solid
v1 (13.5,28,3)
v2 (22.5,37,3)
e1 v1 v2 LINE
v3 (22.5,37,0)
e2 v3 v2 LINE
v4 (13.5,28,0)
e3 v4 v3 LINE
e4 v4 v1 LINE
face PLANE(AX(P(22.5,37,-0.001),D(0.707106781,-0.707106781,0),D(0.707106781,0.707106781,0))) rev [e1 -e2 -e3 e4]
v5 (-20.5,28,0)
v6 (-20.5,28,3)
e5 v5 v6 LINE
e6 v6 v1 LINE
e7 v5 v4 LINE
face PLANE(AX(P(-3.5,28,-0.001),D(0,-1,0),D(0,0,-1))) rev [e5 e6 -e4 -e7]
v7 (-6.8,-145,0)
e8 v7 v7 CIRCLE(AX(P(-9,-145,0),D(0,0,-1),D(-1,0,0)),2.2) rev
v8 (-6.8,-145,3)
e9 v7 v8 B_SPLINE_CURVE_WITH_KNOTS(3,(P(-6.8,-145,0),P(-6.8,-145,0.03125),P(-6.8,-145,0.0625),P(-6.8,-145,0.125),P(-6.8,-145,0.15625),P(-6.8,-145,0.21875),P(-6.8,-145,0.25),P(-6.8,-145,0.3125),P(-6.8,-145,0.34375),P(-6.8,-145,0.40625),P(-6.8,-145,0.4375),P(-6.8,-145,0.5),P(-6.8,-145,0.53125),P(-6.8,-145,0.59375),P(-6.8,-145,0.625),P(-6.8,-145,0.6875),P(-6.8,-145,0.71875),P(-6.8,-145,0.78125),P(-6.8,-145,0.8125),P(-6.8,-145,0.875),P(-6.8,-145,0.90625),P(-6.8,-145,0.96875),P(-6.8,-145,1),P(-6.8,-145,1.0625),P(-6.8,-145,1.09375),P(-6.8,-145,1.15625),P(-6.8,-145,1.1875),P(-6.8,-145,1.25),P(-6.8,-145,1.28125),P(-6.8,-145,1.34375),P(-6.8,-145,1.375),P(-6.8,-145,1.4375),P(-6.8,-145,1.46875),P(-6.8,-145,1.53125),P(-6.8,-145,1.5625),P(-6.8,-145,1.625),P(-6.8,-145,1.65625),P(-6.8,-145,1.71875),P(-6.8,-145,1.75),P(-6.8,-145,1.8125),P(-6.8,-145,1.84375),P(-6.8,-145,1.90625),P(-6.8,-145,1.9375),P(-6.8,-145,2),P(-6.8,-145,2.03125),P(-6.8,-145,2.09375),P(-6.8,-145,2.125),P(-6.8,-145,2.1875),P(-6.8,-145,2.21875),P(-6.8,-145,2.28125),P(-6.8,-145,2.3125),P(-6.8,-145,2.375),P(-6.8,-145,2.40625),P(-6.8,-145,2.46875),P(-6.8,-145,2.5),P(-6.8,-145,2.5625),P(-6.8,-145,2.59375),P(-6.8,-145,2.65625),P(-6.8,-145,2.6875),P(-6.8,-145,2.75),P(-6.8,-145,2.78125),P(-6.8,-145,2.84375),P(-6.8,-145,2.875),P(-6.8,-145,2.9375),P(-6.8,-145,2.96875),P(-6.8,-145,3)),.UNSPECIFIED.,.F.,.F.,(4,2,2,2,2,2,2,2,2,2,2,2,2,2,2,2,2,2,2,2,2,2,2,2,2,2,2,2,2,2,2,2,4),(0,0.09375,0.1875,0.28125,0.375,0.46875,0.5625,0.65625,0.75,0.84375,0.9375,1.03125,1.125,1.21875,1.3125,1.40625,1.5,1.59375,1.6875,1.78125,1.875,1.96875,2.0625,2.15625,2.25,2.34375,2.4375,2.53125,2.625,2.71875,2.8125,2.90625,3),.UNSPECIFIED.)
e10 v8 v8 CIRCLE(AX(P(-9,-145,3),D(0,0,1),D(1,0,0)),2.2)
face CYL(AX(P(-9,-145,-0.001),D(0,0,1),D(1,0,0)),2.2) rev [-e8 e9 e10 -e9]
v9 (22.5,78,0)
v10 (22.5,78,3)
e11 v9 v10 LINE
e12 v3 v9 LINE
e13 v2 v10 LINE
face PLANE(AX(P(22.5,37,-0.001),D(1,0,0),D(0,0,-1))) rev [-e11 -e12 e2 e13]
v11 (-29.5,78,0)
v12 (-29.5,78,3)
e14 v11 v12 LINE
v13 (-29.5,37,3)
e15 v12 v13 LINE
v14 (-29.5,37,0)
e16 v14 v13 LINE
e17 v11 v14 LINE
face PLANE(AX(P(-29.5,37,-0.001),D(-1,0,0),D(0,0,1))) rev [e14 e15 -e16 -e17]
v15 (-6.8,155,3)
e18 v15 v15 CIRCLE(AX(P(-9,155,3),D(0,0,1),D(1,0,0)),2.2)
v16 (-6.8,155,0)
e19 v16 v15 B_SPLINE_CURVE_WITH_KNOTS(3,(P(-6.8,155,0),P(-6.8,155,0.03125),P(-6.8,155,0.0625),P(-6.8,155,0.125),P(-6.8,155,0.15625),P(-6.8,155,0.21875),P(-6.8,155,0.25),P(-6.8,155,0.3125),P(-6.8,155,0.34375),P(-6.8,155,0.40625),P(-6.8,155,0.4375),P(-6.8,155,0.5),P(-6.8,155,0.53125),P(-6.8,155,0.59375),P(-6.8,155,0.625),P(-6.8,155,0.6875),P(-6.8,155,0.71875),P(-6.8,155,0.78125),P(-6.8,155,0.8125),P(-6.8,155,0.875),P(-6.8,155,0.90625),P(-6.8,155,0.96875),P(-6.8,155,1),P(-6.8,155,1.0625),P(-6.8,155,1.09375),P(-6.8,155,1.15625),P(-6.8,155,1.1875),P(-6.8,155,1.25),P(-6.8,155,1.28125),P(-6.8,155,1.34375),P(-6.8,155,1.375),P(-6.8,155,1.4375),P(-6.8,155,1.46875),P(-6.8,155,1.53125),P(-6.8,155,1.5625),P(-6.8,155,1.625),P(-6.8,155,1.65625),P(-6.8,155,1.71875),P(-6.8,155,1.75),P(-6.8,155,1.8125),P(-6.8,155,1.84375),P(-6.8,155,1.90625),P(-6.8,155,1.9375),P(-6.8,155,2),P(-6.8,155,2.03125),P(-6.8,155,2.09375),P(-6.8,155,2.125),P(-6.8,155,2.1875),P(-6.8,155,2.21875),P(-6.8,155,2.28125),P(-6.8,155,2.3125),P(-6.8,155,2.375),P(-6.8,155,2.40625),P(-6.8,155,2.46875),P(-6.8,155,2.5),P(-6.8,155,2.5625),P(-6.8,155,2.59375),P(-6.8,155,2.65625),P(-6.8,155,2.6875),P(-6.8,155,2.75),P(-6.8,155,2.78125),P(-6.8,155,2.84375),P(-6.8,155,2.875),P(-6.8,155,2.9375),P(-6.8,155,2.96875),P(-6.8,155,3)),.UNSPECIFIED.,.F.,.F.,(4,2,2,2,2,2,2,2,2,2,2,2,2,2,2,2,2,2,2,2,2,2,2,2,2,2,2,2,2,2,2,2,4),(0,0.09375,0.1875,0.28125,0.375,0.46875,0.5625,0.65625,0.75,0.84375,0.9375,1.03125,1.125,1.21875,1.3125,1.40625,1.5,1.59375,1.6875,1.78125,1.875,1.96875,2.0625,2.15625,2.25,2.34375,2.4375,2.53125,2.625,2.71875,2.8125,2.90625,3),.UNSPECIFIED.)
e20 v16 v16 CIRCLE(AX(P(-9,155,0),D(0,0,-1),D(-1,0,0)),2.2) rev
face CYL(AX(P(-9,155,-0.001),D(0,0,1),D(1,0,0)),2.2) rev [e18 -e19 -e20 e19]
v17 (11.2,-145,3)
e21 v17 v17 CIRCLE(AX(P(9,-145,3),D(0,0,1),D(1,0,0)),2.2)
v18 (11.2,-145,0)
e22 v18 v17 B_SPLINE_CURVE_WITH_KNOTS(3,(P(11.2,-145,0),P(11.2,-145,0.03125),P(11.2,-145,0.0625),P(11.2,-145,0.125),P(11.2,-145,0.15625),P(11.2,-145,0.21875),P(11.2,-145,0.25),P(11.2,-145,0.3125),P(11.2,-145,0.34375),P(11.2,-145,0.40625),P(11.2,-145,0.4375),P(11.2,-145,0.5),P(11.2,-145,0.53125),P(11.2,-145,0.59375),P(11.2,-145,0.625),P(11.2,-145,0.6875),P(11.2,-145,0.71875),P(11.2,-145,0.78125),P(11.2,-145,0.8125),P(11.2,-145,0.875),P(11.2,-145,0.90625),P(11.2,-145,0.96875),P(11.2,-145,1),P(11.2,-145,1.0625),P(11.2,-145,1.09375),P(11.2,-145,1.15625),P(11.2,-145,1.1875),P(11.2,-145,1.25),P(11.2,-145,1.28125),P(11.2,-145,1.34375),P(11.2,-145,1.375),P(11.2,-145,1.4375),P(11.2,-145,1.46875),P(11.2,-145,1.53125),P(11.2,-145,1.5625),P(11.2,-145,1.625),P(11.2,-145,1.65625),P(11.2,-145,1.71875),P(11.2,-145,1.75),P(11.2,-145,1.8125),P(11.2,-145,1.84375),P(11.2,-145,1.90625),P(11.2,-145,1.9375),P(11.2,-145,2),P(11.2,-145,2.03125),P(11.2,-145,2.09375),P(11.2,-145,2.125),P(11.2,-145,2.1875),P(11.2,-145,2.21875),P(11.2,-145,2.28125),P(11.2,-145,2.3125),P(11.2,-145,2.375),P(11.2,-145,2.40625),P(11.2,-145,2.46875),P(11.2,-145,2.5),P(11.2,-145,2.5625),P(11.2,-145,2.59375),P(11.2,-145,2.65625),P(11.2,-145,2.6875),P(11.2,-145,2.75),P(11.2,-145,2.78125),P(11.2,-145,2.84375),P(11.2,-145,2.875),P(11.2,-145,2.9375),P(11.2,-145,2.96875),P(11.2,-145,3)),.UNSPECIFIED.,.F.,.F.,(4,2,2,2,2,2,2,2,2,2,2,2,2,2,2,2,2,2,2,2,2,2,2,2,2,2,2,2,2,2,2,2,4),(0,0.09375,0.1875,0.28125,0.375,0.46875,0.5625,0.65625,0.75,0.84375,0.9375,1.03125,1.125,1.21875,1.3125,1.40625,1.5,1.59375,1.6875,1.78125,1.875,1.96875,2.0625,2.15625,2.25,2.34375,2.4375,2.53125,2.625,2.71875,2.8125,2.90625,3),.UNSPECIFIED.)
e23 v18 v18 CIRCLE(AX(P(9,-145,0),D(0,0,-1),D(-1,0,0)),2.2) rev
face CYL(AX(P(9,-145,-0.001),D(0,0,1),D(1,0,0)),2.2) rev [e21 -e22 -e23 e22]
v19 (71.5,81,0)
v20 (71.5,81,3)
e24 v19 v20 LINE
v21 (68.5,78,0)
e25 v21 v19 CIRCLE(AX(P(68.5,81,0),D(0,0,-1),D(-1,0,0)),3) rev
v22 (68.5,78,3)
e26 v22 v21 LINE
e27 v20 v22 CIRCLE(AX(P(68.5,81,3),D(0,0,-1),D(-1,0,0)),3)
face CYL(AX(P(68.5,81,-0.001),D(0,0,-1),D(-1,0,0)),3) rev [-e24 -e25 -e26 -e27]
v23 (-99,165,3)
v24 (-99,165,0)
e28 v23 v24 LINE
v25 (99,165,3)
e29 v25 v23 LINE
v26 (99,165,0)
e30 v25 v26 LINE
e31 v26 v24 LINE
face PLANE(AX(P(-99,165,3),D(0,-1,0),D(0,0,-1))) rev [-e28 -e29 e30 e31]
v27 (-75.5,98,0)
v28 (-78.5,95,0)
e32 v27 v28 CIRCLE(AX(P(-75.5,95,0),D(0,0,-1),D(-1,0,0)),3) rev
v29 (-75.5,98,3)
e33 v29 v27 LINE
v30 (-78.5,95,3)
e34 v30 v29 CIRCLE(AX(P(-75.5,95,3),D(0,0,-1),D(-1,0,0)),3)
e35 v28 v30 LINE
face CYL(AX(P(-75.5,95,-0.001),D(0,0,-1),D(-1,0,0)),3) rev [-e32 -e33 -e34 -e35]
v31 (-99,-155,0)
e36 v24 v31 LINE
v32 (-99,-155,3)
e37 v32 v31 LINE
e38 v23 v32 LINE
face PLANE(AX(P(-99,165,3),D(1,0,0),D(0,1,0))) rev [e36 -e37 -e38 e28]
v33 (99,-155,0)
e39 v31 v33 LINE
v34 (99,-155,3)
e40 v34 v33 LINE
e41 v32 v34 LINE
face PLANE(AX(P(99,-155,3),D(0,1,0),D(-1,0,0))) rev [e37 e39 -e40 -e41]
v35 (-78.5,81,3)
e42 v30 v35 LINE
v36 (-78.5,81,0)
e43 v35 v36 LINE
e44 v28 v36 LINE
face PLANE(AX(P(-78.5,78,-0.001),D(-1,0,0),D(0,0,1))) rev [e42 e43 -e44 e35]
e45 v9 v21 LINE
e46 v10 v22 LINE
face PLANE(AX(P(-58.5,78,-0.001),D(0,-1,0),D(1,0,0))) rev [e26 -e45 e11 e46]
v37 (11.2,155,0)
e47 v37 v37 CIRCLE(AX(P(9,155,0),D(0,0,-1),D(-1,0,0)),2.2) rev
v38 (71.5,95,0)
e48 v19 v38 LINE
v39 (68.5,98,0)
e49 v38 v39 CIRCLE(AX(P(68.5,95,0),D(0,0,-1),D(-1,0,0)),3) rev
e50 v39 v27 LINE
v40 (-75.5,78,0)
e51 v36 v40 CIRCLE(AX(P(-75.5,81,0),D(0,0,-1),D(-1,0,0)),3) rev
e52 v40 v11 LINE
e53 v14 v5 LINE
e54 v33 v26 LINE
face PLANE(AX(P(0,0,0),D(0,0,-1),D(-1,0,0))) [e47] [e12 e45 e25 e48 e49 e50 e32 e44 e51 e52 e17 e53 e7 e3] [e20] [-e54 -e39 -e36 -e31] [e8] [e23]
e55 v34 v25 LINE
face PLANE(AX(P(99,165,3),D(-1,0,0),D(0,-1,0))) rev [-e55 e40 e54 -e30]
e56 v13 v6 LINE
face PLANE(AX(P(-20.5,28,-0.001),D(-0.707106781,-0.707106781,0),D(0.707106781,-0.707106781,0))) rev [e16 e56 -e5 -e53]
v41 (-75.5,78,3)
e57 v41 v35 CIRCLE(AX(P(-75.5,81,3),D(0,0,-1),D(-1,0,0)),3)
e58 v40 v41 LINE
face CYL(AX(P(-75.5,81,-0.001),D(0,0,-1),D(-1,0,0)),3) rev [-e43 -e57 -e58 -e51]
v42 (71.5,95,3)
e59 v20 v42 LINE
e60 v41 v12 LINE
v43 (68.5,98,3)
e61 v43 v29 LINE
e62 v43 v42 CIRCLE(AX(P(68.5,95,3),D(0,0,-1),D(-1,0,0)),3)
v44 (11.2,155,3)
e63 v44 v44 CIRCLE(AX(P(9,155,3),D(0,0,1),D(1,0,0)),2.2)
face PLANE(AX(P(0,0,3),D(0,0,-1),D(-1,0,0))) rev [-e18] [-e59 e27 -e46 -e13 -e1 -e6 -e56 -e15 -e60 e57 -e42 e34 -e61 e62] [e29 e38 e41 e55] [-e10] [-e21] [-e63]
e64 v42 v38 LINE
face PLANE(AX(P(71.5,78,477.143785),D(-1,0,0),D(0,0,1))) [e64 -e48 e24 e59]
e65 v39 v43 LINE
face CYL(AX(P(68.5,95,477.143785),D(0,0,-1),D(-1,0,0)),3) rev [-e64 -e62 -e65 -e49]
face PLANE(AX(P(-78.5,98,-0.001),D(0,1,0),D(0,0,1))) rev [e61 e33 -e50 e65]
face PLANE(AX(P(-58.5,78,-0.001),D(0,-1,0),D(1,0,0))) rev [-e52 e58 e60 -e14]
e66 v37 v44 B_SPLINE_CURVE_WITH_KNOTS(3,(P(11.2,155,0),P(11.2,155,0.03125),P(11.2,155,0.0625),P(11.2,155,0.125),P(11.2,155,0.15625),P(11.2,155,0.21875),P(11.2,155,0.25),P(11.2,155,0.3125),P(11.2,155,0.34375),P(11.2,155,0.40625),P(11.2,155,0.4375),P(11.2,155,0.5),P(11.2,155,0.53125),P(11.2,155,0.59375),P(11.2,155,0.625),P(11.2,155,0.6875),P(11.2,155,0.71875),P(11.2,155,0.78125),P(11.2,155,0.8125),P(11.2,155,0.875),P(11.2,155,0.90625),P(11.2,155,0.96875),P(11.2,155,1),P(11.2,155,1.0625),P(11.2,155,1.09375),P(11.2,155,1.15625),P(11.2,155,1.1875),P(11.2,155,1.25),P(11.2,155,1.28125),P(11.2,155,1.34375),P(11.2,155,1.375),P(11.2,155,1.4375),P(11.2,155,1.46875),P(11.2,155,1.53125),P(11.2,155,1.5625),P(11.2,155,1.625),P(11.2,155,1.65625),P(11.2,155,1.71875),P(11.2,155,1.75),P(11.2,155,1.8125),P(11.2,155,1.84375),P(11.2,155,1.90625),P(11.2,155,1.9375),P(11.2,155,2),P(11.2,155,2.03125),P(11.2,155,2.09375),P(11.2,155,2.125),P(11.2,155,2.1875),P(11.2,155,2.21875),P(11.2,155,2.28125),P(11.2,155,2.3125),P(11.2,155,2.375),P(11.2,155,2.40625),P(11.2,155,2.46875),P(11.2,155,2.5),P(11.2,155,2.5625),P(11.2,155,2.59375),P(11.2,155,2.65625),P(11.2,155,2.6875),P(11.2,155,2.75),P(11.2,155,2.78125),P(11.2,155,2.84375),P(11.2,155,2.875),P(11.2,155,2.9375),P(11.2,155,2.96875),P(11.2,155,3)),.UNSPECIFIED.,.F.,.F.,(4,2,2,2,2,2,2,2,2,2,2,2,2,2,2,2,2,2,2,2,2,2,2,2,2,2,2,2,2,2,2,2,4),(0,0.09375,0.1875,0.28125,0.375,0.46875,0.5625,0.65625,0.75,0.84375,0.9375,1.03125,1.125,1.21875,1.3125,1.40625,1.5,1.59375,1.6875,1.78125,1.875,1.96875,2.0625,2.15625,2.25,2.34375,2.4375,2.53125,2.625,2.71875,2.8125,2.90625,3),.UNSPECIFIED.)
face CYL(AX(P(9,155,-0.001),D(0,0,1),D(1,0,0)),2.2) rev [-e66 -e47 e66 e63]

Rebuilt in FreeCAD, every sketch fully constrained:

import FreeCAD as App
import Part
import Sketcher

V = App.Vector
Q = App.Units.Quantity


def edges_at(feature, points):
    """Names of the edges that pass closest to the given points."""
    edges = feature.Shape.Edges
    near = lambda p: min(range(len(edges)), key=lambda i: edges[i].distToShape(Part.Vertex(*p))[0])
    return sorted({f"Edge{near(p) + 1}" for p in points})


def add_polygon(sketch, points):
    """Adds a closed chain of lines whose ends are joined by coincident constraints."""
    first, n = sketch.GeometryCount, len(points)
    for a, b in zip(points, points[1:] + points[:1]):
        sketch.addGeometry(Part.LineSegment(App.Vector(*a, 0), App.Vector(*b, 0)), False)
    for i in range(n):
        sketch.addConstraint(Sketcher.Constraint("Coincident", first + i, 2, first + (i + 1) % n, 1))

doc = App.newDocument("Part")
body = doc.addObject("PartDesign::Body", "Body")

sketch1 = body.newObject("Sketcher::SketchObject", "Sketch")
sketch1.AttachmentSupport = (doc.getObject("XY_Plane"), [""])
sketch1.MapMode = "FlatFace"
add_polygon(sketch1, [(-99, 165), (-99, -155), (99, -155), (99, 165)])
sketch1.addConstraint(Sketcher.Constraint("Vertical", 0))
sketch1.addConstraint(Sketcher.Constraint("Horizontal", 1))
sketch1.addConstraint(Sketcher.Constraint("Vertical", 2))
sketch1.addConstraint(Sketcher.Constraint("Horizontal", 3))
sketch1.addConstraint(Sketcher.Constraint("DistanceX", 1, 1, 1, 2, Q("198 mm")))
sketch1.addConstraint(Sketcher.Constraint("DistanceY", 0, 2, 0, 1, Q("320 mm")))
sketch1.addConstraint(Sketcher.Constraint("DistanceX", 0, 2, -1, 1, Q("99 mm")))
sketch1.addConstraint(Sketcher.Constraint("DistanceY", 0, 2, -1, 1, Q("155 mm")))
pad1 = body.newObject("PartDesign::Pad", "Pad")
pad1.Profile = sketch1
pad1.Length = 3

sketch2 = body.newObject("Sketcher::SketchObject", "Sketch001")
sketch2.AttachmentSupport = (doc.getObject("XY_Plane"), [""])
sketch2.MapMode = "FlatFace"
sketch2.AttachmentOffset = App.Placement(V(0, 0, 3), App.Rotation())
sketch2.addGeometry(Part.Circle(V(9, -145, 0), V(0, 0, 1), 2.2), False)
sketch2.addConstraint(Sketcher.Constraint("Diameter", 0, Q("4.4 mm")))
sketch2.addConstraint(Sketcher.Constraint("DistanceX", -1, 1, 0, 3, Q("9 mm")))
sketch2.addConstraint(Sketcher.Constraint("DistanceY", 0, 3, -1, 1, Q("145 mm")))
pocket1 = body.newObject("PartDesign::Pocket", "Pocket")
pocket1.Profile = sketch2
pocket1.Type = "UpToFirst"

sketch3 = body.newObject("Sketcher::SketchObject", "Sketch002")
sketch3.AttachmentSupport = (doc.getObject("XY_Plane"), [""])
sketch3.MapMode = "FlatFace"
sketch3.AttachmentOffset = App.Placement(V(0, 0, 3), App.Rotation())
sketch3.addGeometry(Part.Circle(V(-9, -145, 0), V(0, 0, 1), 2.2), False)
sketch3.addConstraint(Sketcher.Constraint("Diameter", 0, Q("4.4 mm")))
sketch3.addConstraint(Sketcher.Constraint("DistanceX", 0, 3, -1, 1, Q("9 mm")))
sketch3.addConstraint(Sketcher.Constraint("DistanceY", 0, 3, -1, 1, Q("145 mm")))
pocket2 = body.newObject("PartDesign::Pocket", "Pocket001")
pocket2.Profile = sketch3
pocket2.Type = "UpToFirst"

sketch4 = body.newObject("Sketcher::SketchObject", "Sketch003")
sketch4.AttachmentSupport = (doc.getObject("XY_Plane"), [""])
sketch4.MapMode = "FlatFace"
sketch4.AttachmentOffset = App.Placement(V(0, 0, 3), App.Rotation())
sketch4.addGeometry(Part.Circle(V(-9, 155, 0), V(0, 0, 1), 2.2), False)
sketch4.addConstraint(Sketcher.Constraint("Diameter", 0, Q("4.4 mm")))
sketch4.addConstraint(Sketcher.Constraint("DistanceX", 0, 3, -1, 1, Q("9 mm")))
sketch4.addConstraint(Sketcher.Constraint("DistanceY", -1, 1, 0, 3, Q("155 mm")))
pocket3 = body.newObject("PartDesign::Pocket", "Pocket002")
pocket3.Profile = sketch4
pocket3.Type = "UpToFirst"

sketch5 = body.newObject("Sketcher::SketchObject", "Sketch004")
sketch5.AttachmentSupport = (doc.getObject("XY_Plane"), [""])
sketch5.MapMode = "FlatFace"
sketch5.AttachmentOffset = App.Placement(V(0, 0, 3), App.Rotation())
sketch5.addGeometry(Part.Circle(V(9, 155, 0), V(0, 0, 1), 2.2), False)
sketch5.addConstraint(Sketcher.Constraint("Diameter", 0, Q("4.4 mm")))
sketch5.addConstraint(Sketcher.Constraint("DistanceX", -1, 1, 0, 3, Q("9 mm")))
sketch5.addConstraint(Sketcher.Constraint("DistanceY", -1, 1, 0, 3, Q("155 mm")))
pocket4 = body.newObject("PartDesign::Pocket", "Pocket003")
pocket4.Profile = sketch5
pocket4.Type = "UpToFirst"

sketch6 = body.newObject("Sketcher::SketchObject", "Sketch005")
sketch6.AttachmentSupport = (doc.getObject("XY_Plane"), [""])
sketch6.MapMode = "FlatFace"
sketch6.AttachmentOffset = App.Placement(V(0, 0, 3), App.Rotation())
add_polygon(sketch6, [(-78, 98), (-78, 78), (-58, 78), (-58, 98)])
sketch6.addConstraint(Sketcher.Constraint("Vertical", 0))
sketch6.addConstraint(Sketcher.Constraint("Horizontal", 1))
sketch6.addConstraint(Sketcher.Constraint("Vertical", 2))
sketch6.addConstraint(Sketcher.Constraint("Horizontal", 3))
sketch6.addConstraint(Sketcher.Constraint("Equal", 3, 0))
sketch6.addConstraint(Sketcher.Constraint("DistanceX", 1, 1, 1, 2, Q("20 mm")))
sketch6.addConstraint(Sketcher.Constraint("DistanceY", -1, 1, 0, 2, Q("78 mm")))
sketch6.addConstraint(Sketcher.Constraint("DistanceX", 0, 2, -1, 1, Q("78.5 mm")))
pocket5 = body.newObject("PartDesign::Pocket", "Pocket004")
pocket5.Profile = sketch6
pocket5.Type = "UpToFirst"

sketch7 = body.newObject("Sketcher::SketchObject", "Sketch006")
sketch7.AttachmentSupport = (doc.getObject("XY_Plane"), [""])
sketch7.MapMode = "FlatFace"
sketch7.AttachmentOffset = App.Placement(V(0, 0, 3), App.Rotation())
add_polygon(sketch7, [(-22, 98), (-22, 78), (-2, 78), (-2, 98)])
sketch7.addConstraint(Sketcher.Constraint("Vertical", 0))
sketch7.addConstraint(Sketcher.Constraint("Horizontal", 1))
sketch7.addConstraint(Sketcher.Constraint("Vertical", 2))
sketch7.addConstraint(Sketcher.Constraint("Horizontal", 3))
sketch7.addConstraint(Sketcher.Constraint("Equal", 3, 0))
sketch7.addConstraint(Sketcher.Constraint("DistanceX", 1, 1, 1, 2, Q("20 mm")))
sketch7.addConstraint(Sketcher.Constraint("DistanceY", -1, 1, 0, 2, Q("78 mm")))
sketch7.addConstraint(Sketcher.Constraint("DistanceX", 0, 2, -1, 1, Q("21.5 mm")))
pocket6 = body.newObject("PartDesign::Pocket", "Pocket005")
pocket6.Profile = sketch7
pocket6.Type = "UpToFirst"

sketch8 = body.newObject("Sketcher::SketchObject", "Sketch007")
sketch8.AttachmentSupport = (doc.getObject("XY_Plane"), [""])
sketch8.MapMode = "FlatFace"
sketch8.AttachmentOffset = App.Placement(V(0, 0, 3), App.Rotation())
add_polygon(sketch8, [(36, 98), (36, 78), (56, 78), (56, 98)])
sketch8.addConstraint(Sketcher.Constraint("Vertical", 0))
sketch8.addConstraint(Sketcher.Constraint("Horizontal", 1))
sketch8.addConstraint(Sketcher.Constraint("Vertical", 2))
sketch8.addConstraint(Sketcher.Constraint("Horizontal", 3))
sketch8.addConstraint(Sketcher.Constraint("Equal", 3, 0))
sketch8.addConstraint(Sketcher.Constraint("DistanceX", 1, 1, 1, 2, Q("20 mm")))
sketch8.addConstraint(Sketcher.Constraint("DistanceY", -1, 1, 0, 2, Q("78 mm")))
sketch8.addConstraint(Sketcher.Constraint("DistanceX", -1, 1, 0, 2, Q("35.5 mm")))
pocket7 = body.newObject("PartDesign::Pocket", "Pocket006")
pocket7.Profile = sketch8
pocket7.Type = "UpToFirst"

sketch9 = body.newObject("Sketcher::SketchObject", "Sketch008")
sketch9.AttachmentSupport = (doc.getObject("XY_Plane"), [""])
sketch9.MapMode = "FlatFace"
sketch9.AttachmentOffset = App.Placement(V(0, 0, 3), App.Rotation())
add_polygon(sketch9, [(-58, 98), (-58, 78), (-22, 78), (-22, 98)])
add_polygon(sketch9, [(-2, 98), (-2, 78), (36, 78), (36, 98)])
add_polygon(sketch9, [(56, 98), (56, 78), (72, 78), (72, 98)])
sketch9.addConstraint(Sketcher.Constraint("Vertical", 0))
sketch9.addConstraint(Sketcher.Constraint("Horizontal", 1))
sketch9.addConstraint(Sketcher.Constraint("Vertical", 2))
sketch9.addConstraint(Sketcher.Constraint("Horizontal", 3))
sketch9.addConstraint(Sketcher.Constraint("Vertical", 4))
sketch9.addConstraint(Sketcher.Constraint("Horizontal", 5))
sketch9.addConstraint(Sketcher.Constraint("Vertical", 6))
sketch9.addConstraint(Sketcher.Constraint("Horizontal", 7))
sketch9.addConstraint(Sketcher.Constraint("Vertical", 8))
sketch9.addConstraint(Sketcher.Constraint("Horizontal", 9))
sketch9.addConstraint(Sketcher.Constraint("Vertical", 10))
sketch9.addConstraint(Sketcher.Constraint("Horizontal", 11))
sketch9.addConstraint(Sketcher.Constraint("Horizontal", 1, 2, 4, 2))
sketch9.addConstraint(Sketcher.Constraint("Horizontal", 3, 2, 6, 2))
sketch9.addConstraint(Sketcher.Constraint("Horizontal", 5, 2, 8, 2))
sketch9.addConstraint(Sketcher.Constraint("Horizontal", 7, 2, 10, 2))
sketch9.addConstraint(Sketcher.Constraint("Equal", 3, 5))
sketch9.addConstraint(Sketcher.Constraint("DistanceX", 1, 1, 1, 2, Q("37 mm")))
sketch9.addConstraint(Sketcher.Constraint("DistanceX", 9, 1, 9, 2, Q("16 mm")))
sketch9.addConstraint(Sketcher.Constraint("DistanceY", 0, 2, 0, 1, Q("20 mm")))
sketch9.addConstraint(Sketcher.Constraint("DistanceY", -1, 1, 0, 2, Q("78 mm")))
sketch9.addConstraint(Sketcher.Constraint("DistanceX", 1, 2, 4, 2, Q("20 mm")))
sketch9.addConstraint(Sketcher.Constraint("DistanceX", 5, 2, 8, 2, Q("20 mm")))
sketch9.addConstraint(Sketcher.Constraint("DistanceX", 0, 2, -1, 1, Q("58.5 mm")))
pocket8 = body.newObject("PartDesign::Pocket", "Pocket007")
pocket8.Profile = sketch9
pocket8.Type = "ThroughAll"
pocket8.Midplane = True
doc.recompute()

fillet = body.newObject("PartDesign::Fillet", "Fillet")
fillet.Base = (pocket8, edges_at(pocket8, [
    (-78.5, 78, 1.5),
    (-78.5, 98, 1.5),
    (71.5, 98, 1.5),
    (71.5, 78, 1.5),
]))
fillet.Radius = 3

sketch10 = body.newObject("Sketcher::SketchObject", "Sketch009")
sketch10.AttachmentSupport = (doc.getObject("XY_Plane"), [""])
sketch10.MapMode = "FlatFace"
sketch10.AttachmentOffset = App.Placement(V(0, 0, 3), App.Rotation())
add_polygon(sketch10, [(14, 28), (22, 37), (22, 78), (-30, 78), (-30, 37), (-20, 28)])
sketch10.addConstraint(Sketcher.Constraint("Vertical", 1))
sketch10.addConstraint(Sketcher.Constraint("Horizontal", 2))
sketch10.addConstraint(Sketcher.Constraint("Vertical", 3))
sketch10.addConstraint(Sketcher.Constraint("Horizontal", 5))
sketch10.addConstraint(Sketcher.Constraint("Perpendicular", 0, 4))
sketch10.addConstraint(Sketcher.Constraint("Horizontal", 0, 2, 3, 2))
sketch10.addConstraint(Sketcher.Constraint("Equal", 0, 4))
sketch10.addConstraint(Sketcher.Constraint("DistanceX", 2, 2, 2, 1, Q("52 mm")))
sketch10.addConstraint(Sketcher.Constraint("DistanceX", 5, 1, 5, 2, Q("34 mm")))
sketch10.addConstraint(Sketcher.Constraint("DistanceY", 1, 1, 1, 2, Q("41 mm")))
sketch10.addConstraint(Sketcher.Constraint("DistanceY", -1, 1, 0, 2, Q("37 mm")))
sketch10.addConstraint(Sketcher.Constraint("DistanceX", -1, 1, 0, 2, Q("22.5 mm")))
pocket9 = body.newObject("PartDesign::Pocket", "Pocket008")
pocket9.Profile = sketch10
pocket9.Type = "UpToFirst"

doc.recompute()
